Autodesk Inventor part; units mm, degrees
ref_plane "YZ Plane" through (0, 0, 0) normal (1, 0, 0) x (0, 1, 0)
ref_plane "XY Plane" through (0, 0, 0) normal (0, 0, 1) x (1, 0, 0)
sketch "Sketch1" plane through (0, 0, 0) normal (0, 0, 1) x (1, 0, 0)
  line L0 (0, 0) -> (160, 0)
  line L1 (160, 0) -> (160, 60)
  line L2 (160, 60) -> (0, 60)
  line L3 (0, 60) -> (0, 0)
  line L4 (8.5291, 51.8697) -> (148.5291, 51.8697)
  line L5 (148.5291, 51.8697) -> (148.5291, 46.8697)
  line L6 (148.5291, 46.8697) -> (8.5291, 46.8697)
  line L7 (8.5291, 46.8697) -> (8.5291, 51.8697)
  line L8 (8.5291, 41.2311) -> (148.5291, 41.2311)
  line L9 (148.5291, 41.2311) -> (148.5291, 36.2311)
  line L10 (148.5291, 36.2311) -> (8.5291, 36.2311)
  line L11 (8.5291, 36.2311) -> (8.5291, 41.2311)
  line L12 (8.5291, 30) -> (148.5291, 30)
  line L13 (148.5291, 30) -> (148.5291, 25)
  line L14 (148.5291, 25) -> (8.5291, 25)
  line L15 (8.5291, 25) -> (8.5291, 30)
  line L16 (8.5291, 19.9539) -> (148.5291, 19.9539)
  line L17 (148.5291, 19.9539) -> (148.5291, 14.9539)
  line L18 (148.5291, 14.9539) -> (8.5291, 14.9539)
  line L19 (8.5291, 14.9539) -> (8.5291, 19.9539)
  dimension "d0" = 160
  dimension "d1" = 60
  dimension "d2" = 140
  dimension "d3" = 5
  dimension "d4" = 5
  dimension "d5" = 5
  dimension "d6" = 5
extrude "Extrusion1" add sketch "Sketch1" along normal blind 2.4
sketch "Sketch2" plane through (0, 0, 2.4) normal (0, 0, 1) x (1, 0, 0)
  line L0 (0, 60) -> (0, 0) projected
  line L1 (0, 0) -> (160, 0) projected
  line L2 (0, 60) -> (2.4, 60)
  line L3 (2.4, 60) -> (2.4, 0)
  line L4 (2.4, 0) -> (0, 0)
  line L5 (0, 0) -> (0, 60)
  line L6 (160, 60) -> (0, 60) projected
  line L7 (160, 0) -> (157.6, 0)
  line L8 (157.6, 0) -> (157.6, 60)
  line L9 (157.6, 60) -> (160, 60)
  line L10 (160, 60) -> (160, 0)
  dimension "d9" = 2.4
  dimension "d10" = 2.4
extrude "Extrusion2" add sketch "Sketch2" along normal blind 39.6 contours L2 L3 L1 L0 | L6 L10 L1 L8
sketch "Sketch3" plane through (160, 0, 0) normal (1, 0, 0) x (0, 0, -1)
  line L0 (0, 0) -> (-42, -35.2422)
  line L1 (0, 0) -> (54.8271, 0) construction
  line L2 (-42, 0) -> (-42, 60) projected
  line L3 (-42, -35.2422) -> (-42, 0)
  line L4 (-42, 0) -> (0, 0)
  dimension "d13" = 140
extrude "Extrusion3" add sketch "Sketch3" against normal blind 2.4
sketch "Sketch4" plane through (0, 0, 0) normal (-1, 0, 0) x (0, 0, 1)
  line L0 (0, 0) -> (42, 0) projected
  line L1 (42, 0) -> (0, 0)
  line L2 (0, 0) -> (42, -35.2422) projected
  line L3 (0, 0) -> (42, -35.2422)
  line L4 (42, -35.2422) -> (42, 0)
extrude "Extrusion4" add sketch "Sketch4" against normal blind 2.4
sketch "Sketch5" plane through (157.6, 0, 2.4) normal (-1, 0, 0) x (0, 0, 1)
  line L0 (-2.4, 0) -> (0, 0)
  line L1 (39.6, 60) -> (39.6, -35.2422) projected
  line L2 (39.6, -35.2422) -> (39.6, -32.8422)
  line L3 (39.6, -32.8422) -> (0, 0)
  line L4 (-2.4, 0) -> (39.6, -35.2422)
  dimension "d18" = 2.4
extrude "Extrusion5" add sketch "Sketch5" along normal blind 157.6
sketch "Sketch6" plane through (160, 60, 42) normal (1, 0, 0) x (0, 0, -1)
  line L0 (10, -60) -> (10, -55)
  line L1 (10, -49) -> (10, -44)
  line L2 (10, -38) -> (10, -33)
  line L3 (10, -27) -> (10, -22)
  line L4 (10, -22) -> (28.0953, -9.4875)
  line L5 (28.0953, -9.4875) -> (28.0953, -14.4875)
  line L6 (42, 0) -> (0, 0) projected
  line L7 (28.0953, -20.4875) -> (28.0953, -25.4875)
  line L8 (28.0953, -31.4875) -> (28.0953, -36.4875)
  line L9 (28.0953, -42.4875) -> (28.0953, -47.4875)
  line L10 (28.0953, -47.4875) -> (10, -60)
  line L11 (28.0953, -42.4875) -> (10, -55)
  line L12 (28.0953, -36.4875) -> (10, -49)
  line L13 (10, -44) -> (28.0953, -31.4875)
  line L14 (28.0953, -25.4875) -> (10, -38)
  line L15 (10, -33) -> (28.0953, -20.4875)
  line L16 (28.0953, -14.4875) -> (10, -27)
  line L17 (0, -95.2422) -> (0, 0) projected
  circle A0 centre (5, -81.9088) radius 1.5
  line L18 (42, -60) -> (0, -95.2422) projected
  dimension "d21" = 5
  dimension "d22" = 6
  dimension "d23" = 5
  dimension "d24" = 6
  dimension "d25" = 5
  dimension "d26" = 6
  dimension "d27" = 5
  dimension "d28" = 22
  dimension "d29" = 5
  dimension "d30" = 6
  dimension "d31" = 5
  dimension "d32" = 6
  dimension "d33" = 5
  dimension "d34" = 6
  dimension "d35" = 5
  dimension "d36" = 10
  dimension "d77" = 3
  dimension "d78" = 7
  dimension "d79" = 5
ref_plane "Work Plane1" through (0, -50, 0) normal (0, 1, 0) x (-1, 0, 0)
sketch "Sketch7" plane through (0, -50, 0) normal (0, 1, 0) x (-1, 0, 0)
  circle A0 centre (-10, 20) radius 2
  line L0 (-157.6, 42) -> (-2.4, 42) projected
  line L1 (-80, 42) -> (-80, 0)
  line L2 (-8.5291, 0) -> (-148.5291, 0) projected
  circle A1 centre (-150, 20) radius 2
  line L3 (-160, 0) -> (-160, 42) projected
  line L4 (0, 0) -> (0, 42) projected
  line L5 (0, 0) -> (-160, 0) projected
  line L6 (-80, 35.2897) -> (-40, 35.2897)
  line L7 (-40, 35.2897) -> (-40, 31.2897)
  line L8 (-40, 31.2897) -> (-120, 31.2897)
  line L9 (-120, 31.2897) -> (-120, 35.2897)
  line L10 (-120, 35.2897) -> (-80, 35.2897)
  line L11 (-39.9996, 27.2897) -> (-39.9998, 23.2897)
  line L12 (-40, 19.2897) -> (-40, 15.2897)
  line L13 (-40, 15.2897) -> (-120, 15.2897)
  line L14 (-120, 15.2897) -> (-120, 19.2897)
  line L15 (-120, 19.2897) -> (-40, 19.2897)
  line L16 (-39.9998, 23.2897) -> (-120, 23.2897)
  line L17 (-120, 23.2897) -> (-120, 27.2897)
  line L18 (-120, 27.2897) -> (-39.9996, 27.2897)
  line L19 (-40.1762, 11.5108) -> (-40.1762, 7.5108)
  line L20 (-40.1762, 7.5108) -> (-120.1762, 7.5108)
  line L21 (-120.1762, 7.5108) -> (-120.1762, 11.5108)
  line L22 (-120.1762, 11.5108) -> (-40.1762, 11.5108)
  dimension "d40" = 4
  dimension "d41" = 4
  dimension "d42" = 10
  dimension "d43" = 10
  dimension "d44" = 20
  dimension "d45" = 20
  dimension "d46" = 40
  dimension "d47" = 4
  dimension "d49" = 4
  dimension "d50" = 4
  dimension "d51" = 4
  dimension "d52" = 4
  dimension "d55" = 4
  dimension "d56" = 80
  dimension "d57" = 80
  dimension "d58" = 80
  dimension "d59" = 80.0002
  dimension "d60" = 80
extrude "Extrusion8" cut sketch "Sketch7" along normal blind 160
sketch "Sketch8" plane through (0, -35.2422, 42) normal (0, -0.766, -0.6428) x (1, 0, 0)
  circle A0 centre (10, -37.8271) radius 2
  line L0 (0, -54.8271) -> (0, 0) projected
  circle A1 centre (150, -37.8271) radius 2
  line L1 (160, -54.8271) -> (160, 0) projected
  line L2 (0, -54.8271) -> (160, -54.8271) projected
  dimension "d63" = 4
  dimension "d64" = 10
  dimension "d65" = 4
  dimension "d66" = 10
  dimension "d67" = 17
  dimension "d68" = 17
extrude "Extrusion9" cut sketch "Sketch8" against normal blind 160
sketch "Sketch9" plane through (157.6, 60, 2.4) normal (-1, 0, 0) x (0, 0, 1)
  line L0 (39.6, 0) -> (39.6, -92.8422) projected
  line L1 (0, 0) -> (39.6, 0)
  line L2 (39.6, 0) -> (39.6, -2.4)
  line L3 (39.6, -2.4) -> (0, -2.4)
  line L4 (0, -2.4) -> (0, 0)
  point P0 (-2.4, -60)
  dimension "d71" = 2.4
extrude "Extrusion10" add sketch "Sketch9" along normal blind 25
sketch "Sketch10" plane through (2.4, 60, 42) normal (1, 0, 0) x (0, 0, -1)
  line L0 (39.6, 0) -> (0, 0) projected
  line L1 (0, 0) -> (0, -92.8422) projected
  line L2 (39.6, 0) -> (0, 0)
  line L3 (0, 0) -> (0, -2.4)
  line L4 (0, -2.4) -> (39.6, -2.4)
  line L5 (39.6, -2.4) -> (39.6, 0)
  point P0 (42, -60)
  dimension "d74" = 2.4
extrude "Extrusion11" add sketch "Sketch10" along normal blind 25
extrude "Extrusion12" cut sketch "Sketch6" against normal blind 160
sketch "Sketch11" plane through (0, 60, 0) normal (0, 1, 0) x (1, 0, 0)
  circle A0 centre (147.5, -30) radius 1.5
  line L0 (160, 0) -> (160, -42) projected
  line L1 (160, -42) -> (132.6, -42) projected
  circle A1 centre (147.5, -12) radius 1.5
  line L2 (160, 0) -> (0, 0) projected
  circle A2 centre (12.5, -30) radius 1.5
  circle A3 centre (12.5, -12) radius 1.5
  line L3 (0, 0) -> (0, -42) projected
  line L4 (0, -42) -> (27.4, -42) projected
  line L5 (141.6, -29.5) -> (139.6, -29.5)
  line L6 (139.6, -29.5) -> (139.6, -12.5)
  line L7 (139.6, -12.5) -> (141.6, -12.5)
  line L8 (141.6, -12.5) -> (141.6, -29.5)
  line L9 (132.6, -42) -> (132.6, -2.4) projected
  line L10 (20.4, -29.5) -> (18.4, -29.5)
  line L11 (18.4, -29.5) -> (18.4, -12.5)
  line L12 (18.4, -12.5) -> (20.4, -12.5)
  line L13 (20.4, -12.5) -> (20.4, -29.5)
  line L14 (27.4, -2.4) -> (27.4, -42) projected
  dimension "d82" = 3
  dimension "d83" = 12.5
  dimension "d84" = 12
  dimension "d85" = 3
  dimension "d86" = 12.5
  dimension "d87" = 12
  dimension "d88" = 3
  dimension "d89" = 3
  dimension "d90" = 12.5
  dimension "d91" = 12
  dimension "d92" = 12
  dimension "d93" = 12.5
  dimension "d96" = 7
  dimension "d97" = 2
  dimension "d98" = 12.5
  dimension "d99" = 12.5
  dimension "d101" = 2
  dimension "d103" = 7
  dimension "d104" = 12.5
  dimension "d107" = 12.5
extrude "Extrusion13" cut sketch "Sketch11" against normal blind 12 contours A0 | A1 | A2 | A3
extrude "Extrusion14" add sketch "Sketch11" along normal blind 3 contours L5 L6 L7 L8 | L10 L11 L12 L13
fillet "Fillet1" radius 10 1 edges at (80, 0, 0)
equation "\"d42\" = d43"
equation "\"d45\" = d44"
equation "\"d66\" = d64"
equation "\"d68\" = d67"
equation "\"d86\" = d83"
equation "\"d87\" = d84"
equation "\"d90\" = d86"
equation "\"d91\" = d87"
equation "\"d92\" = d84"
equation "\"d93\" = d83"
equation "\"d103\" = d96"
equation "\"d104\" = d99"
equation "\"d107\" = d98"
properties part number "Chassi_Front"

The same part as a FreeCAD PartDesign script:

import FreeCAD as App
import Part
import Sketcher
from FreeCAD import Vector
Q = App.Units.Quantity


def edges_at(feature, points):
    """Names of the edges that pass closest to the given points."""
    edges = feature.Shape.Edges
    near = lambda p: min(range(len(edges)), key=lambda i: edges[i].distToShape(Part.Vertex(*p))[0])
    return sorted({f"Edge{near(p) + 1}" for p in points})


def add_polygon(sketch, points):
    """Adds a closed chain of lines whose ends are joined by coincident constraints."""
    first, n = sketch.GeometryCount, len(points)
    for a, b in zip(points, points[1:] + points[:1]):
        sketch.addGeometry(Part.LineSegment(App.Vector(*a, 0), App.Vector(*b, 0)), False)
    for i in range(n):
        sketch.addConstraint(Sketcher.Constraint("Coincident", first + i, 2, first + (i + 1) % n, 1))

doc = App.newDocument("Part")
body = doc.addObject("PartDesign::Body", "Body")

# Sketch on XY plane
sketch1 = body.newObject("Sketcher::SketchObject", "Sketch")
sketch1.AttachmentSupport = (doc.getObject("XY_Plane"), [""])
sketch1.MapMode = "FlatFace"
add_polygon(sketch1, [(0, 60), (0, 0), (160, 0), (160, 60)])  # lines 0-3
add_polygon(sketch1, [(9, 15), (9, 20), (149, 20), (149, 15)])  # lines 4-7
add_polygon(sketch1, [(9, 25), (9, 30), (149, 30), (149, 25)])  # lines 8-11
add_polygon(sketch1, [(9, 36), (9, 41), (149, 41), (149, 36)])  # lines 12-15
add_polygon(sketch1, [(9, 47), (9, 52), (149, 52), (149, 47)])  # lines 16-19
sketch1.addConstraint([
    Sketcher.Constraint("Vertical", 0),
    Sketcher.Constraint("Horizontal", 1),
    Sketcher.Constraint("Vertical", 2),
    Sketcher.Constraint("Horizontal", 3),
    Sketcher.Constraint("Vertical", 4),
    Sketcher.Constraint("Horizontal", 5),
    Sketcher.Constraint("Vertical", 6),
    Sketcher.Constraint("Horizontal", 7),
    Sketcher.Constraint("Vertical", 8),
    Sketcher.Constraint("Horizontal", 9),
    Sketcher.Constraint("Vertical", 10),
    Sketcher.Constraint("Horizontal", 11),
    Sketcher.Constraint("Vertical", 12),
    Sketcher.Constraint("Horizontal", 13),
    Sketcher.Constraint("Vertical", 14),
    Sketcher.Constraint("Horizontal", 15),
    Sketcher.Constraint("Vertical", 16),
    Sketcher.Constraint("Horizontal", 17),
    Sketcher.Constraint("Vertical", 18),
    Sketcher.Constraint("Horizontal", 19),
    Sketcher.Constraint("Coincident", 0, 2, -1, 1),
    Sketcher.Constraint("Vertical", 7, 2, 8, 2),
    Sketcher.Constraint("Vertical", 6, 2, 9, 2),
    Sketcher.Constraint("Vertical", 11, 2, 12, 2),
    Sketcher.Constraint("Vertical", 10, 2, 13, 2),
    Sketcher.Constraint("Vertical", 15, 2, 16, 2),
    Sketcher.Constraint("Vertical", 14, 2, 17, 2),
    Sketcher.Constraint("Equal", 6, 8),
    Sketcher.Constraint("Equal", 10, 12),
    Sketcher.Constraint("Equal", 14, 16),
    Sketcher.Constraint("DistanceX", 1, 1, 1, 2, 160.0),
    Sketcher.Constraint("DistanceX", 5, 1, 5, 2, 140.0),
    Sketcher.Constraint("DistanceY", 0, 2, 0, 1, 60.0),
    Sketcher.Constraint("DistanceY", 4, 1, 4, 2, 5.0),
    Sketcher.Constraint("DistanceY", -1, 1, 8, 2, 30.0),
    Sketcher.Constraint("DistanceX", -1, 1, 4, 2, 8.529),
    Sketcher.Constraint("DistanceY", -1, 1, 4, 2, 19.954),
    Sketcher.Constraint("DistanceY", -1, 1, 12, 2, 41.231),
    Sketcher.Constraint("DistanceY", -1, 1, 16, 2, 51.8697),
])
pad1 = body.newObject("PartDesign::Pad", "Pad")
pad1.Profile = sketch1
pad1.Length = 2.4

# Sketch on XY plane
sketch2 = body.newObject("Sketcher::SketchObject", "Sketch001")
sketch2.AttachmentSupport = (doc.getObject("XY_Plane"), [""])
sketch2.MapMode = "FlatFace"
sketch2.AttachmentOffset = App.Placement(Vector(0, 0, 2.4), App.Rotation())
add_polygon(sketch2, [(2.4, 60), (0, 60), (0, 0), (2.4, 0)])  # lines 0-3
add_polygon(sketch2, [(160, 60), (157.6, 60), (157.6, 0), (160, 0)])  # lines 4-7
sketch2.addConstraint([
    Sketcher.Constraint("Horizontal", 0),
    Sketcher.Constraint("Vertical", 1),
    Sketcher.Constraint("Horizontal", 2),
    Sketcher.Constraint("Vertical", 3),
    Sketcher.Constraint("Horizontal", 4),
    Sketcher.Constraint("Vertical", 5),
    Sketcher.Constraint("Horizontal", 6),
    Sketcher.Constraint("Vertical", 7),
    Sketcher.Constraint("Coincident", 1, 2, -1, 1),
    Sketcher.Constraint("PointOnObject", 5, 2, -1),
    Sketcher.Constraint("Horizontal", 3, 2, 4, 2),
    Sketcher.Constraint("Equal", 2, 4),
    Sketcher.Constraint("DistanceX", 0, 2, 0, 1, 2.4),
    Sketcher.Constraint("DistanceY", 1, 2, 1, 1, 60.0),
    Sketcher.Constraint("DistanceX", -1, 1, 6, 2, 160.0),
])
pad2 = body.newObject("PartDesign::Pad", "Pad001")
pad2.Profile = sketch2
pad2.Length = 39.6

# Sketch on YZ plane
sketch3 = body.newObject("Sketcher::SketchObject", "Sketch002")
sketch3.AttachmentSupport = (doc.getObject("YZ_Plane"), [""])
sketch3.MapMode = "FlatFace"
sketch3.AttachmentOffset = App.Placement(Vector(0, 0, 160), App.Rotation())
add_polygon(sketch3, [(-35, 42), (0, 0), (0, 42)])  # lines 0-2
sketch3.addConstraint([
    Sketcher.Constraint("Vertical", 1),
    Sketcher.Constraint("Horizontal", 2),
    Sketcher.Constraint("Coincident", 0, 2, -1, 1),
    Sketcher.Constraint("DistanceY", 1, 1, 1, 2, 42.0),
    Sketcher.Constraint("Angle", 0, Q("-50 deg")),
])
pad3 = body.newObject("PartDesign::Pad", "Pad002")
pad3.Profile = sketch3
pad3.Length = 2.4
pad3.Reversed = True

# Sketch on YZ plane
sketch4 = body.newObject("Sketcher::SketchObject", "Sketch003")
sketch4.AttachmentSupport = (doc.getObject("YZ_Plane"), [""])
sketch4.MapMode = "FlatFace"
add_polygon(sketch4, [(0, 42), (0, 0), (-35, 42)])  # lines 0-2
sketch4.addConstraint([
    Sketcher.Constraint("Vertical", 0),
    Sketcher.Constraint("Horizontal", 2),
    Sketcher.Constraint("Coincident", 0, 2, -1, 1),
    Sketcher.Constraint("DistanceY", 0, 2, 0, 1, 42.0),
    Sketcher.Constraint("Angle", 1, Q("130 deg")),
])
pad4 = body.newObject("PartDesign::Pad", "Pad003")
pad4.Profile = sketch4
pad4.Length = 2.4

# Sketch on YZ plane
sketch5 = body.newObject("Sketcher::SketchObject", "Sketch004")
sketch5.AttachmentSupport = (doc.getObject("YZ_Plane"), [""])
sketch5.MapMode = "FlatFace"
sketch5.AttachmentOffset = App.Placement(Vector(0, 0, 157.6), App.Rotation())
add_polygon(sketch5, [(0, 2.4), (0, 0), (-35.2, 42), (-32.8, 42)])  # lines 0-3
sketch5.addConstraint([
    Sketcher.Constraint("Vertical", 0),
    Sketcher.Constraint("Horizontal", 2),
    Sketcher.Constraint("Coincident", 0, 2, -1, 1),
    Sketcher.Constraint("Equal", 2, 0),
    Sketcher.Constraint("DistanceX", 2, 1, 2, 2, 2.4),
    Sketcher.Constraint("Angle", 1, Q("130 deg")),
    Sketcher.Constraint("DistanceY", -1, 1, 1, 2, 42.0),
])
pad5 = body.newObject("PartDesign::Pad", "Pad004")
pad5.Profile = sketch5
pad5.Length = 157.6
pad5.Reversed = True

# Sketch on XZ plane
sketch6 = body.newObject("Sketcher::SketchObject", "Sketch005")
sketch6.AttachmentSupport = (doc.getObject("XZ_Plane"), [""])
sketch6.MapMode = "FlatFace"
sketch6.AttachmentOffset = App.Placement(Vector(0, 0, 50), App.Rotation())
sketch6.addGeometry(Part.Circle(Vector(10, 20, 0), Vector(0, 0, 1), 2), False)  # 0
add_polygon(sketch6, [(40, 35.3), (120, 35.3), (120, 31.3), (40, 31.3)])  # lines 1-4
add_polygon(sketch6, [(40.2, 11.5), (120.2, 11.5), (120.2, 7.5), (40.2, 7.5)])  # lines 5-8
add_polygon(sketch6, [(40, 19.3), (120, 19.3), (120, 15.3), (40, 15.3)])  # lines 9-12
add_polygon(sketch6, [(40, 27.3), (120, 27.3), (120, 23.3), (40, 23.3)])  # lines 13-16
sketch6.addGeometry(Part.Circle(Vector(150, 20, 0), Vector(0, 0, 1), 2), False)  # 17
sketch6.addConstraint([
    Sketcher.Constraint("Horizontal", 1),
    Sketcher.Constraint("Vertical", 2),
    Sketcher.Constraint("Horizontal", 3),
    Sketcher.Constraint("Vertical", 4),
    Sketcher.Constraint("Horizontal", 5),
    Sketcher.Constraint("Vertical", 6),
    Sketcher.Constraint("Horizontal", 7),
    Sketcher.Constraint("Vertical", 8),
    Sketcher.Constraint("Horizontal", 9),
    Sketcher.Constraint("Vertical", 10),
    Sketcher.Constraint("Horizontal", 11),
    Sketcher.Constraint("Vertical", 12),
    Sketcher.Constraint("Horizontal", 13),
    Sketcher.Constraint("Vertical", 14),
    Sketcher.Constraint("Horizontal", 15),
    Sketcher.Constraint("Vertical", 16),
    Sketcher.Constraint("Equal", 0, 17),
    Sketcher.Constraint("Horizontal", 0, 3, 17, 3),
    Sketcher.Constraint("Vertical", 2, 2, 9, 2),
    Sketcher.Constraint("Vertical", 4, 2, 11, 2),
    Sketcher.Constraint("Vertical", 10, 2, 13, 2),
    Sketcher.Constraint("Vertical", 12, 2, 15, 2),
    Sketcher.Constraint("Equal", 3, 5),
    Sketcher.Constraint("Equal", 4, 6),
    Sketcher.Constraint("Equal", 8, 10),
    Sketcher.Constraint("Equal", 12, 14),
    Sketcher.Constraint("Diameter", 0, 4.0),
    Sketcher.Constraint("DistanceX", 1, 1, 1, 2, 80.0),
    Sketcher.Constraint("DistanceY", 2, 2, 2, 1, 4.0),
    Sketcher.Constraint("DistanceX", -1, 1, 0, 3, 10.0),
    Sketcher.Constraint("DistanceY", -1, 1, 0, 3, 20.0),
    Sketcher.Constraint("DistanceX", -1, 1, 3, 2, 40.0),
    Sketcher.Constraint("DistanceY", 10, 2, 1, 2, 20.0),
    Sketcher.Constraint("DistanceY", 13, 2, 2, 2, 4.0),
    Sketcher.Constraint("DistanceX", -1, 1, 17, 3, 150.0),
    Sketcher.Constraint("DistanceY", 5, 2, 2, 2, 19.779),
    Sketcher.Constraint("DistanceY", -1, 1, 1, 2, 35.2897),
    Sketcher.Constraint("DistanceX", -1, 1, 5, 2, 120.1762),
])
pocket1 = body.newObject("PartDesign::Pocket", "Pocket")
pocket1.Profile = sketch6
pocket1.Length = 160

# Sketch on an angled plane
sketch7 = body.newObject("Sketcher::SketchObject", "Sketch006")
sketch7.Placement = App.Placement(Vector(0, -35.2422, 42), App.Rotation(Vector(1, 0, 0), Vector(0, -0.64278761, 0.766044443), Vector(0, -0.766044443, -0.64278761), "ZXY"))
sketch7.addGeometry([
    Part.Circle(Vector(10, -37.8, 0), Vector(0, 0, 1), 2),
    Part.Circle(Vector(150, -37.8, 0), Vector(0, 0, 1), 2),
], False)
sketch7.addConstraint([
    Sketcher.Constraint("Equal", 0, 1),
    Sketcher.Constraint("Horizontal", 0, 3, 1, 3),
    Sketcher.Constraint("Diameter", 0, 4.0),
    Sketcher.Constraint("DistanceX", -1, 1, 0, 3, 10.0),
    Sketcher.Constraint("DistanceX", -1, 1, 1, 3, 150.0),
    Sketcher.Constraint("DistanceY", 0, 3, -1, 1, 37.827),
])
pocket2 = body.newObject("PartDesign::Pocket", "Pocket001")
pocket2.Profile = sketch7
pocket2.Length = 160

# Sketch on YZ plane
sketch8 = body.newObject("Sketcher::SketchObject", "Sketch007")
sketch8.AttachmentSupport = (doc.getObject("YZ_Plane"), [""])
sketch8.MapMode = "FlatFace"
sketch8.AttachmentOffset = App.Placement(Vector(0, 0, 157.6), App.Rotation())
add_polygon(sketch8, [(57.6, 42), (60, 42), (60, 2.4), (57.6, 2.4)])  # lines 0-3
sketch8.addConstraint([
    Sketcher.Constraint("Horizontal", 0),
    Sketcher.Constraint("Vertical", 1),
    Sketcher.Constraint("Horizontal", 2),
    Sketcher.Constraint("Vertical", 3),
    Sketcher.Constraint("DistanceX", 0, 1, 0, 2, 2.4),
    Sketcher.Constraint("DistanceY", -1, 1, 1, 2, 2.4),
    Sketcher.Constraint("DistanceY", 1, 2, 1, 1, 39.6),
    Sketcher.Constraint("DistanceX", -1, 1, 0, 2, 60.0),
])
pad6 = body.newObject("PartDesign::Pad", "Pad005")
pad6.Profile = sketch8
pad6.Length = 25
pad6.Reversed = True

# Sketch on YZ plane
sketch9 = body.newObject("Sketcher::SketchObject", "Sketch008")
sketch9.AttachmentSupport = (doc.getObject("YZ_Plane"), [""])
sketch9.MapMode = "FlatFace"
sketch9.AttachmentOffset = App.Placement(Vector(0, 0, 2.4), App.Rotation())
add_polygon(sketch9, [(57.6, 2.4), (60, 2.4), (60, 42), (57.6, 42)])  # lines 0-3
sketch9.addConstraint([
    Sketcher.Constraint("Horizontal", 0),
    Sketcher.Constraint("Vertical", 1),
    Sketcher.Constraint("Horizontal", 2),
    Sketcher.Constraint("Vertical", 3),
    Sketcher.Constraint("DistanceX", 0, 1, 0, 2, 2.4),
    Sketcher.Constraint("DistanceY", -1, 1, 0, 2, 2.4),
    Sketcher.Constraint("DistanceY", 1, 1, 1, 2, 39.6),
    Sketcher.Constraint("DistanceX", -1, 1, 0, 2, 60.0),
])
pad7 = body.newObject("PartDesign::Pad", "Pad006")
pad7.Profile = sketch9
pad7.Length = 25

# Sketch on YZ plane
sketch10 = body.newObject("Sketcher::SketchObject", "Sketch009")
sketch10.AttachmentSupport = (doc.getObject("YZ_Plane"), [""])
sketch10.MapMode = "FlatFace"
sketch10.AttachmentOffset = App.Placement(Vector(0, 0, 160), App.Rotation())
add_polygon(sketch10, [(5, 32), (0, 32), (12.5, 13.9), (17.5, 13.9)])  # lines 0-3
add_polygon(sketch10, [(16, 32), (11, 32), (23.5, 13.9), (28.5, 13.9)])  # lines 4-7
add_polygon(sketch10, [(27, 32), (22, 32), (34.5, 13.9), (39.5, 13.9)])  # lines 8-11
add_polygon(sketch10, [(38, 32), (33, 32), (45.5, 13.9), (50.5, 13.9)])  # lines 12-15
sketch10.addGeometry(Part.Circle(Vector(-21.9, 37, 0), Vector(0, 0, 1), 1.5), False)  # 16
sketch10.addConstraint([
    Sketcher.Constraint("Horizontal", 0),
    Sketcher.Constraint("Horizontal", 2),
    Sketcher.Constraint("Horizontal", 4),
    Sketcher.Constraint("Horizontal", 6),
    Sketcher.Constraint("Horizontal", 8),
    Sketcher.Constraint("Horizontal", 10),
    Sketcher.Constraint("Horizontal", 12),
    Sketcher.Constraint("Horizontal", 14),
    Sketcher.Constraint("PointOnObject", 0, 2, -2),
    Sketcher.Constraint("Parallel", 1, 3),
    Sketcher.Constraint("Parallel", 3, 5),
    Sketcher.Constraint("Parallel", 5, 7),
    Sketcher.Constraint("Parallel", 7, 9),
    Sketcher.Constraint("Parallel", 9, 11),
    Sketcher.Constraint("Parallel", 11, 13),
    Sketcher.Constraint("Parallel", 13, 15),
    Sketcher.Constraint("Horizontal", 3, 2, 4, 2),
    Sketcher.Constraint("Horizontal", 2, 2, 5, 2),
    Sketcher.Constraint("Horizontal", 7, 2, 8, 2),
    Sketcher.Constraint("Horizontal", 6, 2, 9, 2),
    Sketcher.Constraint("Horizontal", 11, 2, 12, 2),
    Sketcher.Constraint("Horizontal", 10, 2, 13, 2),
    Sketcher.Constraint("Equal", 2, 4),
    Sketcher.Constraint("Equal", 6, 8),
    Sketcher.Constraint("Equal", 10, 12),
    Sketcher.Constraint("Diameter", 16, 3.0),
    Sketcher.Constraint("DistanceX", 0, 2, 0, 1, 5.0),
    Sketcher.Constraint("Distance", 1, 22.0),
    Sketcher.Constraint("DistanceX", -1, 1, 8, 2, 22.0),
    Sketcher.Constraint("DistanceY", 0, 2, 16, 3, 5.0),
    Sketcher.Constraint("DistanceX", 3, 2, 4, 2, 6.0),
    Sketcher.Constraint("DistanceX", 11, 2, 12, 2, 6.0),
    Sketcher.Constraint("DistanceY", -1, 1, 16, 3, 37.0),
    Sketcher.Constraint("DistanceX", 16, 3, -1, 1, 21.9088),
    Sketcher.Constraint("DistanceX", -1, 1, 1, 2, 12.5125),
])
pocket3 = body.newObject("PartDesign::Pocket", "Pocket002")
pocket3.Profile = sketch10
pocket3.Length = 160

# Sketch on XZ plane
sketch11 = body.newObject("Sketcher::SketchObject", "Sketch010")
sketch11.AttachmentSupport = (doc.getObject("XZ_Plane"), [""])
sketch11.MapMode = "FlatFace"
sketch11.AttachmentOffset = App.Placement(Vector(0, 0, -60), App.Rotation())
sketch11.addGeometry([
    Part.Circle(Vector(147.5, 30, 0), Vector(0, 0, 1), 1.5),
    Part.Circle(Vector(147.5, 12, 0), Vector(0, 0, 1), 1.5),
    Part.Circle(Vector(12.5, 30, 0), Vector(0, 0, 1), 1.5),
    Part.Circle(Vector(12.5, 12, 0), Vector(0, 0, 1), 1.5),
], False)
sketch11.addConstraint([
    Sketcher.Constraint("Equal", 0, 1),
    Sketcher.Constraint("Equal", 1, 2),
    Sketcher.Constraint("Equal", 2, 3),
    Sketcher.Constraint("Horizontal", 0, 3, 2, 3),
    Sketcher.Constraint("Horizontal", 1, 3, 3, 3),
    Sketcher.Constraint("Vertical", 0, 3, 1, 3),
    Sketcher.Constraint("Vertical", 2, 3, 3, 3),
    Sketcher.Constraint("Diameter", 0, 3.0),
    Sketcher.Constraint("DistanceY", -1, 1, 1, 3, 12.0),
    Sketcher.Constraint("DistanceX", -1, 1, 2, 3, 12.5),
    Sketcher.Constraint("DistanceY", -1, 1, 0, 3, 30.0),
    Sketcher.Constraint("DistanceX", 2, 3, 0, 3, 135.0),
])
pocket4 = body.newObject("PartDesign::Pocket", "Pocket003")
pocket4.Profile = sketch11
pocket4.Length = 12
pocket4.Reversed = True

# Sketch on XZ plane
sketch12 = body.newObject("Sketcher::SketchObject", "Sketch011")
sketch12.AttachmentSupport = (doc.getObject("XZ_Plane"), [""])
sketch12.MapMode = "FlatFace"
sketch12.AttachmentOffset = App.Placement(Vector(0, 0, -60), App.Rotation())
add_polygon(sketch12, [(139.6, 29.5), (141.6, 29.5), (141.6, 12.5), (139.6, 12.5)])  # lines 0-3
add_polygon(sketch12, [(18.4, 29.5), (20.4, 29.5), (20.4, 12.5), (18.4, 12.5)])  # lines 4-7
sketch12.addConstraint([
    Sketcher.Constraint("Horizontal", 0),
    Sketcher.Constraint("Vertical", 1),
    Sketcher.Constraint("Horizontal", 2),
    Sketcher.Constraint("Vertical", 3),
    Sketcher.Constraint("Horizontal", 4),
    Sketcher.Constraint("Vertical", 5),
    Sketcher.Constraint("Horizontal", 6),
    Sketcher.Constraint("Vertical", 7),
    Sketcher.Constraint("Horizontal", 3, 2, 4, 2),
    Sketcher.Constraint("Horizontal", 2, 2, 5, 2),
    Sketcher.Constraint("Equal", 2, 4),
    Sketcher.Constraint("DistanceX", 0, 1, 0, 2, 2.0),
    Sketcher.Constraint("DistanceY", -1, 1, 1, 2, 12.5),
    Sketcher.Constraint("DistanceY", 1, 2, 1, 1, 17.0),
    Sketcher.Constraint("DistanceX", -1, 1, 0, 2, 141.6),
    Sketcher.Constraint("DistanceX", -1, 1, 4, 2, 20.4),
])
pad8 = body.newObject("PartDesign::Pad", "Pad007")
pad8.Profile = sketch12
pad8.Length = 3
pad8.Reversed = True
doc.recompute()

fillet = body.newObject("PartDesign::Fillet", "Fillet")
fillet.Base = (pad8, edges_at(pad8, [(80, 0, 0)]))
fillet.Radius = 10

doc.recompute()
